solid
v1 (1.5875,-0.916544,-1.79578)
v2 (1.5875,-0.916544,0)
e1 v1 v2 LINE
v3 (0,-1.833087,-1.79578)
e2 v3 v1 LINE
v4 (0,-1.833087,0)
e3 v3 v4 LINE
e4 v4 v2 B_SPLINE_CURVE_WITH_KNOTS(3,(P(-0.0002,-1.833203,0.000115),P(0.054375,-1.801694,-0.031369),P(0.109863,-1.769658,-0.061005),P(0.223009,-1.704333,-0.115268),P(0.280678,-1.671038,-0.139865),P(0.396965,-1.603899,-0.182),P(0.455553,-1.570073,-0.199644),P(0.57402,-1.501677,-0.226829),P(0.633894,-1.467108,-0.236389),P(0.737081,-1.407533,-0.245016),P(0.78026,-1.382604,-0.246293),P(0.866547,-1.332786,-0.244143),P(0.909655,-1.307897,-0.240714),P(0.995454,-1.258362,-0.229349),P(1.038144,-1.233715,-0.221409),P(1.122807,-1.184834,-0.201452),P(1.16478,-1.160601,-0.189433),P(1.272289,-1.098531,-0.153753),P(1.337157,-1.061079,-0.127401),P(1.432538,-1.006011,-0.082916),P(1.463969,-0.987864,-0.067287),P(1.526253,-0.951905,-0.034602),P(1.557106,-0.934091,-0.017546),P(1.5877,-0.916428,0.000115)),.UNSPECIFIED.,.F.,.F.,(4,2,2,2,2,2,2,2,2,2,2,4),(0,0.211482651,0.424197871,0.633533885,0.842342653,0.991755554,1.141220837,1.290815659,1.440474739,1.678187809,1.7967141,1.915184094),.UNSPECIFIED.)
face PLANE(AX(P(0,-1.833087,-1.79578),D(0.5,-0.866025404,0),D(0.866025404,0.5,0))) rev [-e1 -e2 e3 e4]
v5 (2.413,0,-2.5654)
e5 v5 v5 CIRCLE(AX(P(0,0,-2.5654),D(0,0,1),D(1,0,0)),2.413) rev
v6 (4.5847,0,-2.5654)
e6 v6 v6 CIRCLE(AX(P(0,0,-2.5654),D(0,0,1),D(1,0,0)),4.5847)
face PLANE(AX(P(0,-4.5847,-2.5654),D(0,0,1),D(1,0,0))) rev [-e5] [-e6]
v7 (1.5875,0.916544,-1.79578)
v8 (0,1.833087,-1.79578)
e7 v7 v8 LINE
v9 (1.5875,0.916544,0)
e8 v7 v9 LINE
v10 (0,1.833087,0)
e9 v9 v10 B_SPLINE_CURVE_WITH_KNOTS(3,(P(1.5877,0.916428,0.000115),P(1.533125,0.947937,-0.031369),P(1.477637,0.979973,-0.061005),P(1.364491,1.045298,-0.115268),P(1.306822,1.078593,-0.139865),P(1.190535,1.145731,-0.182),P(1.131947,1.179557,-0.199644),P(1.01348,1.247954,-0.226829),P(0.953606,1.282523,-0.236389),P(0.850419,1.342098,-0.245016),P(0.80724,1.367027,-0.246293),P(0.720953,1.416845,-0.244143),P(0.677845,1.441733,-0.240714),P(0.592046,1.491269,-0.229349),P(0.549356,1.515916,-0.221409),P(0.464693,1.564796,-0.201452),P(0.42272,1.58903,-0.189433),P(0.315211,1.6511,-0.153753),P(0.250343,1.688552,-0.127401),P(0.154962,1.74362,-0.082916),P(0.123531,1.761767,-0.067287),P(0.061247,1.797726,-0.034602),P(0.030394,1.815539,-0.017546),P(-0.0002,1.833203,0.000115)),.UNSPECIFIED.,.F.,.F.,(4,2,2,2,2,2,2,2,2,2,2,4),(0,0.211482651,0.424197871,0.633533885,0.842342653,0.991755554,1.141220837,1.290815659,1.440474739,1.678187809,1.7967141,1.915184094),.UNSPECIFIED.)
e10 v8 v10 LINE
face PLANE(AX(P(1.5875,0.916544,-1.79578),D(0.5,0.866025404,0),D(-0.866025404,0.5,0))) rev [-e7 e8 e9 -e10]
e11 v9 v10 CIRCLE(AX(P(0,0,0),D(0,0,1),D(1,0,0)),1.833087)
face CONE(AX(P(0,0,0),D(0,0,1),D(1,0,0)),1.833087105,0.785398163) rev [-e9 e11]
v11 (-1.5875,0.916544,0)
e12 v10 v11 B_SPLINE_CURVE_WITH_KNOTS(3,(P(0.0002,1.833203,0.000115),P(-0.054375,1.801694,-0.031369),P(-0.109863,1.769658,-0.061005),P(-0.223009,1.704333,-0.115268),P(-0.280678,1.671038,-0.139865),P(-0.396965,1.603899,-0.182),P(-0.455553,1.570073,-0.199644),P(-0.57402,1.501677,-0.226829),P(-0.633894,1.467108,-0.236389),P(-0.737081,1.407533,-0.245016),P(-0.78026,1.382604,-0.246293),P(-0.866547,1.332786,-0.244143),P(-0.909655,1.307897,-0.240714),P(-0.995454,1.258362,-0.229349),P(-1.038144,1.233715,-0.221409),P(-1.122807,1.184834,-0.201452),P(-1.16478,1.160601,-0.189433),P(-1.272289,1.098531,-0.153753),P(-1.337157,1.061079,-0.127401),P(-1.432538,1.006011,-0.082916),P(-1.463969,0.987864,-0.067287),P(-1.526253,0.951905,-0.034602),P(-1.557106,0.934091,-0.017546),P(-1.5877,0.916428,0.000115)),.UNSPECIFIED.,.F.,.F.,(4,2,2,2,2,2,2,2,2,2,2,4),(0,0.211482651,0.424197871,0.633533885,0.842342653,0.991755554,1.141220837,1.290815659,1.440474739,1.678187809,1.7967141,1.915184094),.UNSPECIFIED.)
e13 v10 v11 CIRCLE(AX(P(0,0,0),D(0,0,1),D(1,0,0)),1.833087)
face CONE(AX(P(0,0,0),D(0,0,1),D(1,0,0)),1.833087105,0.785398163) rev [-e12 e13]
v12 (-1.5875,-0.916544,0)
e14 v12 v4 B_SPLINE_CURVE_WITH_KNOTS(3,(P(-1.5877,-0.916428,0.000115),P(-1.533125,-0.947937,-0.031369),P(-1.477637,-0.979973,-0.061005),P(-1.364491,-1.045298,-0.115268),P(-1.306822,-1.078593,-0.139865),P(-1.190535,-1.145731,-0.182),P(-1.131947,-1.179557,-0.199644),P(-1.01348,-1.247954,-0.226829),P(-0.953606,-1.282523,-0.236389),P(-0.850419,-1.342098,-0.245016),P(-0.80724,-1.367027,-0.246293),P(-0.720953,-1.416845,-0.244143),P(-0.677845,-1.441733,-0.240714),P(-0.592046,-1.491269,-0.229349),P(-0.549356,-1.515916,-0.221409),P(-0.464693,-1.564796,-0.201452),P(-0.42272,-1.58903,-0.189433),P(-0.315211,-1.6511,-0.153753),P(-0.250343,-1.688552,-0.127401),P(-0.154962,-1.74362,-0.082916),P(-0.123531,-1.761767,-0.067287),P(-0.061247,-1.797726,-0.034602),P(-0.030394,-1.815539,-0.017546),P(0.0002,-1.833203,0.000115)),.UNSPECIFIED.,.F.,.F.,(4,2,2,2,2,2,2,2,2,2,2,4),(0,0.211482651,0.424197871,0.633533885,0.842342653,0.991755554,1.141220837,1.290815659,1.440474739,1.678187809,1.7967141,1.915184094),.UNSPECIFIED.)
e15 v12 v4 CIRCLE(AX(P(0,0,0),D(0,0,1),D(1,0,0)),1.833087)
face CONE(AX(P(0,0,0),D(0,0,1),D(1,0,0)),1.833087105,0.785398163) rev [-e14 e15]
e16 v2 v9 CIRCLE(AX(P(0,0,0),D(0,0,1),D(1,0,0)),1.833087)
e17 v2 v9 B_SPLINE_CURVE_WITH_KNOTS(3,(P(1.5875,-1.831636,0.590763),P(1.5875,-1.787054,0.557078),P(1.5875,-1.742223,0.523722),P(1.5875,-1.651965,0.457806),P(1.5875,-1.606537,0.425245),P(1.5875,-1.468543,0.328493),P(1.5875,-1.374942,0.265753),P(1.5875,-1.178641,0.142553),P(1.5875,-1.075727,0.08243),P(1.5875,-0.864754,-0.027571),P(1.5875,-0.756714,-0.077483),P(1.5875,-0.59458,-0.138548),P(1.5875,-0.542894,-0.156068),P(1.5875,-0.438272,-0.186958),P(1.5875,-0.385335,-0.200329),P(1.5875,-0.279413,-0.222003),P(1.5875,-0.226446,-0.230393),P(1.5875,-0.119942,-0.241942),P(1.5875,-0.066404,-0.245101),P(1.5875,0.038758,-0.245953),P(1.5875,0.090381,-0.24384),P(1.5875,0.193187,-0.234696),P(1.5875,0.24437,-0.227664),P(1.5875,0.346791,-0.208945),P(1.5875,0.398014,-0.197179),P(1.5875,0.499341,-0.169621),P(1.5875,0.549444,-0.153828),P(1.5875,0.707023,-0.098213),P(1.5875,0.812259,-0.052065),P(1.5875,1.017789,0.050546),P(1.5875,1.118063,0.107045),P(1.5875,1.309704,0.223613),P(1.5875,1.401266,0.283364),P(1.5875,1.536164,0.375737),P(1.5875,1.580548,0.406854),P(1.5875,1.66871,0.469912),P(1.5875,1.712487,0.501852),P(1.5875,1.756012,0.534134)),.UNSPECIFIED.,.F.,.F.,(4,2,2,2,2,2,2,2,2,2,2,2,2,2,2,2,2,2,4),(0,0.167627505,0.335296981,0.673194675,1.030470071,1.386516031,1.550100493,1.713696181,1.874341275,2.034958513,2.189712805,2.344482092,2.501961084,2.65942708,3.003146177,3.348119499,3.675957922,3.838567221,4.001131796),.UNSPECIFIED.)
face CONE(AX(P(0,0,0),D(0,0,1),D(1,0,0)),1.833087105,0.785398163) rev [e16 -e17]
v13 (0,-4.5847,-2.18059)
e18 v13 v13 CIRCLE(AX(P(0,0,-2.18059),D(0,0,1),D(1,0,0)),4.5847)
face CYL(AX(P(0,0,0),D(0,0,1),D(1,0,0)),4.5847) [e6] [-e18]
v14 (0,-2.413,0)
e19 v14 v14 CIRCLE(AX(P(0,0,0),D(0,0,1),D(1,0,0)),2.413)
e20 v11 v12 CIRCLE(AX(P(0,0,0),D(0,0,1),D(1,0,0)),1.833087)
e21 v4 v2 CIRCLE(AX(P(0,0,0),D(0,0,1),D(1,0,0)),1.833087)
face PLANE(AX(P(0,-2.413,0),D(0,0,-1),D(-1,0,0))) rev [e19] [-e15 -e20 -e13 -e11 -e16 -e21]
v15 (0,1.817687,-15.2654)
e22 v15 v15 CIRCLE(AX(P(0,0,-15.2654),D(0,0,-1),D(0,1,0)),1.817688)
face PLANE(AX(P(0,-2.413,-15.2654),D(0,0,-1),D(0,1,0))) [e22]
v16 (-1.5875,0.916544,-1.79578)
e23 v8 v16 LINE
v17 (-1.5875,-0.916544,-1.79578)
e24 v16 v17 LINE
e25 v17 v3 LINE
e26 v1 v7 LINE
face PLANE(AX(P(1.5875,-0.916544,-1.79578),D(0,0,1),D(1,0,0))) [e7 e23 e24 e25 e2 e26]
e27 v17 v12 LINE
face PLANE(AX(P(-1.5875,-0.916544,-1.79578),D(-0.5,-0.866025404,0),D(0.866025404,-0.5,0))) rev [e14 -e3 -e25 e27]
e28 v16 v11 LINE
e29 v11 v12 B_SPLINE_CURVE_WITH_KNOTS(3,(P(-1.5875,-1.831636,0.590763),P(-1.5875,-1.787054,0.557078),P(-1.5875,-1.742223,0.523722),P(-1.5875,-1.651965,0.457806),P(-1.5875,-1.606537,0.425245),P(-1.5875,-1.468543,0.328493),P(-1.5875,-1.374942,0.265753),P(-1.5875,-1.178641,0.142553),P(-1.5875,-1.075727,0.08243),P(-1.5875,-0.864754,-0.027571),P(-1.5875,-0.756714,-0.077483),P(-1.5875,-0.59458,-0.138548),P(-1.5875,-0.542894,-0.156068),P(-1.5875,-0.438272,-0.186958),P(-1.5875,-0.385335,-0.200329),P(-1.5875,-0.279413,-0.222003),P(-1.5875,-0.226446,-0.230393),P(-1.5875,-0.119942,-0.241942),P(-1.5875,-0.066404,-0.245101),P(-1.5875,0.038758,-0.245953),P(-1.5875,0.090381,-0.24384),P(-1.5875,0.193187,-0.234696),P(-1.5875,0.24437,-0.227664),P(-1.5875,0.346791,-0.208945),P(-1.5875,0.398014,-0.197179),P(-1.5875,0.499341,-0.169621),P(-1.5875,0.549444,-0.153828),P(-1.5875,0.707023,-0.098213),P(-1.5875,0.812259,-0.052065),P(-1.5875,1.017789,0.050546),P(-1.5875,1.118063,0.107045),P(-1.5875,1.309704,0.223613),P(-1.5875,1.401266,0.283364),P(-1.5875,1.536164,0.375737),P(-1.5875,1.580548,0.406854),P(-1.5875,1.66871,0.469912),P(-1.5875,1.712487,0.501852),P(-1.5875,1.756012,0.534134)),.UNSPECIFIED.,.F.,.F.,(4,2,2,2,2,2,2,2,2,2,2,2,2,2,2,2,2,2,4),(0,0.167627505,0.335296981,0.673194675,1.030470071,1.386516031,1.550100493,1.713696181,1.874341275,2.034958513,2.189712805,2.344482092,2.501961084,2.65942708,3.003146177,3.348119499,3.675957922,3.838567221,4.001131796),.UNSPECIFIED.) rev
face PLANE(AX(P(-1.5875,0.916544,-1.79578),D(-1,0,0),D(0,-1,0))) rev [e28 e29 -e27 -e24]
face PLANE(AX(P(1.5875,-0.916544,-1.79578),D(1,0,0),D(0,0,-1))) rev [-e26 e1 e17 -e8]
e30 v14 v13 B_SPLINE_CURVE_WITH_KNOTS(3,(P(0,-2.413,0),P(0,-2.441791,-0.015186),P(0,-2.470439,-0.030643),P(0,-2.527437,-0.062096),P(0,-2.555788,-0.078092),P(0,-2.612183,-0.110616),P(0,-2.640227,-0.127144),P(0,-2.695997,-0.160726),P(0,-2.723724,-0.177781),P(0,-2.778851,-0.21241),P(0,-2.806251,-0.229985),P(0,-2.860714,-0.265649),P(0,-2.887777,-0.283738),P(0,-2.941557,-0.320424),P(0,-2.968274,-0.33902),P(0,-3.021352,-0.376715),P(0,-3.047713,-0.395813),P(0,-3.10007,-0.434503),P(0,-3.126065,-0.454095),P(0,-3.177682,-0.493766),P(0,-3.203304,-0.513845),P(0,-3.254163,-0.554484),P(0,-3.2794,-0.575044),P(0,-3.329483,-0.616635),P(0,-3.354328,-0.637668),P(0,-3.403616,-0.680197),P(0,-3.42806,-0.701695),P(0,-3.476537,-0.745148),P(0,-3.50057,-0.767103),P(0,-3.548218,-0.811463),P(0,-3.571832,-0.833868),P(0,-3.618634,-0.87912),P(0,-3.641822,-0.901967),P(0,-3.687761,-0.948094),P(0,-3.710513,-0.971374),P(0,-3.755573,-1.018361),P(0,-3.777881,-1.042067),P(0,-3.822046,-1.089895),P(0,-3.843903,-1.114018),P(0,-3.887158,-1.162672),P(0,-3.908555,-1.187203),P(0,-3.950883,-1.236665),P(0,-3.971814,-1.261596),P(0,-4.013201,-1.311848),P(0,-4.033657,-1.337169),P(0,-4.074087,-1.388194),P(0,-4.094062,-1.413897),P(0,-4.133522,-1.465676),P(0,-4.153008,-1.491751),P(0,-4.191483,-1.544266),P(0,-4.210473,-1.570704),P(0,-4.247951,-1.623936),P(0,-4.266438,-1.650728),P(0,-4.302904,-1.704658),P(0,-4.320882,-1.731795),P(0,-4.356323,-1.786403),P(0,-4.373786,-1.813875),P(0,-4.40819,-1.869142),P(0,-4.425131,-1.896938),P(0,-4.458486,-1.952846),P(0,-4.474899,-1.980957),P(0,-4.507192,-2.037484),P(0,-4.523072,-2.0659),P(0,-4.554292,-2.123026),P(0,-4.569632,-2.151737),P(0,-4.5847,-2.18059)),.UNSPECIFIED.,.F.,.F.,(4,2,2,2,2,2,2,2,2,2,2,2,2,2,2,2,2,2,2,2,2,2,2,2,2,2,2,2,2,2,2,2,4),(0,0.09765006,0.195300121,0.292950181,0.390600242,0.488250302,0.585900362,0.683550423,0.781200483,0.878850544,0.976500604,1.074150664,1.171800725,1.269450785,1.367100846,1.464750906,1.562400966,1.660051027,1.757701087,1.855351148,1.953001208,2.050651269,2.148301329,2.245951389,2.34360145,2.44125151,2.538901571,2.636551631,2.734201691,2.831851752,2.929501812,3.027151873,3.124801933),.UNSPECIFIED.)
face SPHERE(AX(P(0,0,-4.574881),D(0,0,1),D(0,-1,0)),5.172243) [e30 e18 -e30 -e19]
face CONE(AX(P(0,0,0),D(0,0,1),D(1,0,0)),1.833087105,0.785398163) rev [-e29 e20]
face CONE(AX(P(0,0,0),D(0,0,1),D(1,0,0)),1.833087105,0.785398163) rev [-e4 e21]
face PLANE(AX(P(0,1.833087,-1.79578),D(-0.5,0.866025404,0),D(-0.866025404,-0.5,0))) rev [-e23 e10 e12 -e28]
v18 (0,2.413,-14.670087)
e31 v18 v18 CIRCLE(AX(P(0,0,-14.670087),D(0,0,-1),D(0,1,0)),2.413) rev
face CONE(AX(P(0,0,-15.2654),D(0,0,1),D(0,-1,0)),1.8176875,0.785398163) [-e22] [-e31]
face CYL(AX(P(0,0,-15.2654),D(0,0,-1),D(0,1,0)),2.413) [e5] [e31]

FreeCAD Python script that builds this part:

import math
import FreeCAD as App
import Part
import Sketcher

V = App.Vector
Q = App.Units.Quantity


def edges_at(feature, points):
    """Names of the edges that pass closest to the given points."""
    edges = feature.Shape.Edges
    near = lambda p: min(range(len(edges)), key=lambda i: edges[i].distToShape(Part.Vertex(*p))[0])
    return sorted({f"Edge{near(p) + 1}" for p in points})


def add_polygon(sketch, points):
    """Adds a closed chain of lines whose ends are joined by coincident constraints."""
    first, n = sketch.GeometryCount, len(points)
    for a, b in zip(points, points[1:] + points[:1]):
        sketch.addGeometry(Part.LineSegment(App.Vector(*a, 0), App.Vector(*b, 0)), False)
    for i in range(n):
        sketch.addConstraint(Sketcher.Constraint("Coincident", first + i, 2, first + (i + 1) % n, 1))

doc = App.newDocument("Part")
params = doc.addObject("Spreadsheet::Sheet", "Params")
for row, (alias, value) in enumerate([
    ("sketch1_height", "0.5 in"),
    ("sketch1_width", "0.095 in"),
    ("revolution_angle", "360 deg"),
    ("chamfer_size", "0.595313 mm"),
    ("sketch2_width", "0.095 in"),
    ("sketch2_height", "0.101 in"),
    ("revolution2_angle", "360 deg"),
    ("pocket1_length", "0.0707 in"),
    ("pocket2_length", "0.0707 in"),
    ("pocket2_taper", "-45 deg"),
], start=1):
    params.set(f"A{row}", alias)
    params.set(f"B{row}", "=" + value)
    params.setAlias(f"B{row}", alias)

body = doc.addObject("PartDesign::Body", "Body")

sketch1 = body.newObject("Sketcher::SketchObject", "Sketch")
sketch1.AttachmentSupport = (doc.getObject("YZ_Plane"), [""])
sketch1.MapMode = "FlatFace"
add_polygon(sketch1, [(2.4, -2.6), (0, -2.6), (0, -15.3), (2.4, -15.3)])
sketch1.addConstraint([
    Sketcher.Constraint("Horizontal", 0),
    Sketcher.Constraint("Vertical", 1),
    Sketcher.Constraint("Horizontal", 2),
    Sketcher.Constraint("Vertical", 3),
    Sketcher.Constraint("PointOnObject", 0, 2, -2),
    Sketcher.Constraint("DistanceY", 1, 2, 1, 1, Q("0.5 in")),
    Sketcher.Constraint("DistanceX", 0, 2, 0, 1, Q("0.095 in")),
    Sketcher.Constraint("DistanceY", 0, 2, -1, 1, Q("0.101 in")),
])
sketch1.setExpression("Constraints[9]", "Params.sketch1_height")
sketch1.setExpression("Constraints[10]", "Params.sketch1_width")
revolution = body.newObject("PartDesign::Revolution", "Revolution")
revolution.Profile = sketch1
revolution.ReferenceAxis = (sketch1, ["V_Axis"])
revolution.setExpression("Angle", "Params.revolution_angle")
doc.recompute()

chamfer = body.newObject("PartDesign::Chamfer", "Chamfer")
chamfer.Base = (revolution, edges_at(revolution, [(0, -2.413, -15.265)]))
chamfer.setExpression("Size", "Params.chamfer_size")

sketch2 = body.newObject("Sketcher::SketchObject", "Sketch001")
sketch2.AttachmentSupport = (doc.getObject("YZ_Plane"), [""])
sketch2.MapMode = "FlatFace"
sketch2.addGeometry([
    Part.LineSegment(V(4.58, -2.57, 0), V(4.58, -2.18, 0)),
    Part.ArcOfCircle(Part.Circle(V(0, -4.57, 0), V(0, 0, 1), 5.17), math.radians(28), math.radians(62)),
    Part.LineSegment(V(2.41, 0, 0), V(0, 0, 0)),
    Part.LineSegment(V(0, 0, 0), V(0, -2.57, 0)),
    Part.LineSegment(V(0, -2.57, 0), V(4.58, -2.57, 0)),
], False)
sketch2.addConstraint([
    Sketcher.Constraint("Coincident", 0, 2, 1, 1),
    Sketcher.Constraint("Coincident", 1, 2, 2, 1),
    Sketcher.Constraint("Coincident", 2, 2, 3, 1),
    Sketcher.Constraint("Coincident", 3, 2, 4, 1),
    Sketcher.Constraint("Coincident", 4, 2, 0, 1),
    Sketcher.Constraint("Vertical", 0),
    Sketcher.Constraint("Horizontal", 2),
    Sketcher.Constraint("Vertical", 3),
    Sketcher.Constraint("Horizontal", 4),
    Sketcher.Constraint("Coincident", 2, 2, -1, 1),
    Sketcher.Constraint("PointOnObject", 1, 3, -2),
    Sketcher.Constraint("DistanceX", 2, 2, 2, 1, Q("0.095 in")),
    Sketcher.Constraint("DistanceY", 3, 2, 3, 1, Q("0.101 in")),
    Sketcher.Constraint("DistanceX", 4, 1, 4, 2, Q("0.1805 in")),
    Sketcher.Constraint("Radius", 1, 5.172243),
])
sketch2.setExpression("Constraints[11]", "Params.sketch2_width")
sketch2.setExpression("Constraints[12]", "Params.sketch2_height")
revolution2 = body.newObject("PartDesign::Revolution", "Revolution001")
revolution2.Profile = sketch2
revolution2.ReferenceAxis = (sketch2, ["V_Axis"])
revolution2.setExpression("Angle", "Params.revolution2_angle")

sketch3 = body.newObject("Sketcher::SketchObject", "Sketch002")
sketch3.AttachmentSupport = (doc.getObject("XY_Plane"), [""])
sketch3.MapMode = "FlatFace"
add_polygon(sketch3, [(1.6, -0.9), (1.6, 0.9), (0, 1.8), (-1.6, 0.9), (-1.6, -0.9), (0, -1.8)])
sketch3.addConstraint([
    Sketcher.Constraint("Vertical", 0),
    Sketcher.Constraint("Vertical", 3),
    Sketcher.Constraint("Symmetric", 0, 2, 3, 2, -1, 1),
    Sketcher.Constraint("Symmetric", 1, 2, 4, 2, -1, 1),
    Sketcher.Constraint("PointOnObject", 1, 2, -2),
    Sketcher.Constraint("Parallel", 2, 5),
    Sketcher.Constraint("Horizontal", 0, 2, 2, 2),
    Sketcher.Constraint("Angle", 1, Q("150 deg")),
    Sketcher.Constraint("DistanceX", -1, 1, 0, 2, Q("0.0625 in")),
    Sketcher.Constraint("DistanceY", 0, 1, 0, 2, 1.833087),
])
pocket1 = body.newObject("PartDesign::Pocket", "Pocket")
pocket1.Profile = sketch3
pocket1.setExpression("Length", "Params.pocket1_length")

sketch4 = body.newObject("Sketcher::SketchObject", "Sketch003")
sketch4.AttachmentSupport = (doc.getObject("XY_Plane"), [""])
sketch4.MapMode = "FlatFace"
sketch4.addGeometry(Part.Circle(V(0, 0, 0), V(0, 0, 1), 1.8), False)
sketch4.addConstraint([
    Sketcher.Constraint("Coincident", 0, 3, -1, 1),
    Sketcher.Constraint("Diameter", 0, 3.666174),
])
pocket2 = body.newObject("PartDesign::Pocket", "Pocket001")
pocket2.Profile = sketch4
pocket2.setExpression("Length", "Params.pocket2_length")
pocket2.setExpression("TaperAngle", "Params.pocket2_taper")

doc.recompute()
